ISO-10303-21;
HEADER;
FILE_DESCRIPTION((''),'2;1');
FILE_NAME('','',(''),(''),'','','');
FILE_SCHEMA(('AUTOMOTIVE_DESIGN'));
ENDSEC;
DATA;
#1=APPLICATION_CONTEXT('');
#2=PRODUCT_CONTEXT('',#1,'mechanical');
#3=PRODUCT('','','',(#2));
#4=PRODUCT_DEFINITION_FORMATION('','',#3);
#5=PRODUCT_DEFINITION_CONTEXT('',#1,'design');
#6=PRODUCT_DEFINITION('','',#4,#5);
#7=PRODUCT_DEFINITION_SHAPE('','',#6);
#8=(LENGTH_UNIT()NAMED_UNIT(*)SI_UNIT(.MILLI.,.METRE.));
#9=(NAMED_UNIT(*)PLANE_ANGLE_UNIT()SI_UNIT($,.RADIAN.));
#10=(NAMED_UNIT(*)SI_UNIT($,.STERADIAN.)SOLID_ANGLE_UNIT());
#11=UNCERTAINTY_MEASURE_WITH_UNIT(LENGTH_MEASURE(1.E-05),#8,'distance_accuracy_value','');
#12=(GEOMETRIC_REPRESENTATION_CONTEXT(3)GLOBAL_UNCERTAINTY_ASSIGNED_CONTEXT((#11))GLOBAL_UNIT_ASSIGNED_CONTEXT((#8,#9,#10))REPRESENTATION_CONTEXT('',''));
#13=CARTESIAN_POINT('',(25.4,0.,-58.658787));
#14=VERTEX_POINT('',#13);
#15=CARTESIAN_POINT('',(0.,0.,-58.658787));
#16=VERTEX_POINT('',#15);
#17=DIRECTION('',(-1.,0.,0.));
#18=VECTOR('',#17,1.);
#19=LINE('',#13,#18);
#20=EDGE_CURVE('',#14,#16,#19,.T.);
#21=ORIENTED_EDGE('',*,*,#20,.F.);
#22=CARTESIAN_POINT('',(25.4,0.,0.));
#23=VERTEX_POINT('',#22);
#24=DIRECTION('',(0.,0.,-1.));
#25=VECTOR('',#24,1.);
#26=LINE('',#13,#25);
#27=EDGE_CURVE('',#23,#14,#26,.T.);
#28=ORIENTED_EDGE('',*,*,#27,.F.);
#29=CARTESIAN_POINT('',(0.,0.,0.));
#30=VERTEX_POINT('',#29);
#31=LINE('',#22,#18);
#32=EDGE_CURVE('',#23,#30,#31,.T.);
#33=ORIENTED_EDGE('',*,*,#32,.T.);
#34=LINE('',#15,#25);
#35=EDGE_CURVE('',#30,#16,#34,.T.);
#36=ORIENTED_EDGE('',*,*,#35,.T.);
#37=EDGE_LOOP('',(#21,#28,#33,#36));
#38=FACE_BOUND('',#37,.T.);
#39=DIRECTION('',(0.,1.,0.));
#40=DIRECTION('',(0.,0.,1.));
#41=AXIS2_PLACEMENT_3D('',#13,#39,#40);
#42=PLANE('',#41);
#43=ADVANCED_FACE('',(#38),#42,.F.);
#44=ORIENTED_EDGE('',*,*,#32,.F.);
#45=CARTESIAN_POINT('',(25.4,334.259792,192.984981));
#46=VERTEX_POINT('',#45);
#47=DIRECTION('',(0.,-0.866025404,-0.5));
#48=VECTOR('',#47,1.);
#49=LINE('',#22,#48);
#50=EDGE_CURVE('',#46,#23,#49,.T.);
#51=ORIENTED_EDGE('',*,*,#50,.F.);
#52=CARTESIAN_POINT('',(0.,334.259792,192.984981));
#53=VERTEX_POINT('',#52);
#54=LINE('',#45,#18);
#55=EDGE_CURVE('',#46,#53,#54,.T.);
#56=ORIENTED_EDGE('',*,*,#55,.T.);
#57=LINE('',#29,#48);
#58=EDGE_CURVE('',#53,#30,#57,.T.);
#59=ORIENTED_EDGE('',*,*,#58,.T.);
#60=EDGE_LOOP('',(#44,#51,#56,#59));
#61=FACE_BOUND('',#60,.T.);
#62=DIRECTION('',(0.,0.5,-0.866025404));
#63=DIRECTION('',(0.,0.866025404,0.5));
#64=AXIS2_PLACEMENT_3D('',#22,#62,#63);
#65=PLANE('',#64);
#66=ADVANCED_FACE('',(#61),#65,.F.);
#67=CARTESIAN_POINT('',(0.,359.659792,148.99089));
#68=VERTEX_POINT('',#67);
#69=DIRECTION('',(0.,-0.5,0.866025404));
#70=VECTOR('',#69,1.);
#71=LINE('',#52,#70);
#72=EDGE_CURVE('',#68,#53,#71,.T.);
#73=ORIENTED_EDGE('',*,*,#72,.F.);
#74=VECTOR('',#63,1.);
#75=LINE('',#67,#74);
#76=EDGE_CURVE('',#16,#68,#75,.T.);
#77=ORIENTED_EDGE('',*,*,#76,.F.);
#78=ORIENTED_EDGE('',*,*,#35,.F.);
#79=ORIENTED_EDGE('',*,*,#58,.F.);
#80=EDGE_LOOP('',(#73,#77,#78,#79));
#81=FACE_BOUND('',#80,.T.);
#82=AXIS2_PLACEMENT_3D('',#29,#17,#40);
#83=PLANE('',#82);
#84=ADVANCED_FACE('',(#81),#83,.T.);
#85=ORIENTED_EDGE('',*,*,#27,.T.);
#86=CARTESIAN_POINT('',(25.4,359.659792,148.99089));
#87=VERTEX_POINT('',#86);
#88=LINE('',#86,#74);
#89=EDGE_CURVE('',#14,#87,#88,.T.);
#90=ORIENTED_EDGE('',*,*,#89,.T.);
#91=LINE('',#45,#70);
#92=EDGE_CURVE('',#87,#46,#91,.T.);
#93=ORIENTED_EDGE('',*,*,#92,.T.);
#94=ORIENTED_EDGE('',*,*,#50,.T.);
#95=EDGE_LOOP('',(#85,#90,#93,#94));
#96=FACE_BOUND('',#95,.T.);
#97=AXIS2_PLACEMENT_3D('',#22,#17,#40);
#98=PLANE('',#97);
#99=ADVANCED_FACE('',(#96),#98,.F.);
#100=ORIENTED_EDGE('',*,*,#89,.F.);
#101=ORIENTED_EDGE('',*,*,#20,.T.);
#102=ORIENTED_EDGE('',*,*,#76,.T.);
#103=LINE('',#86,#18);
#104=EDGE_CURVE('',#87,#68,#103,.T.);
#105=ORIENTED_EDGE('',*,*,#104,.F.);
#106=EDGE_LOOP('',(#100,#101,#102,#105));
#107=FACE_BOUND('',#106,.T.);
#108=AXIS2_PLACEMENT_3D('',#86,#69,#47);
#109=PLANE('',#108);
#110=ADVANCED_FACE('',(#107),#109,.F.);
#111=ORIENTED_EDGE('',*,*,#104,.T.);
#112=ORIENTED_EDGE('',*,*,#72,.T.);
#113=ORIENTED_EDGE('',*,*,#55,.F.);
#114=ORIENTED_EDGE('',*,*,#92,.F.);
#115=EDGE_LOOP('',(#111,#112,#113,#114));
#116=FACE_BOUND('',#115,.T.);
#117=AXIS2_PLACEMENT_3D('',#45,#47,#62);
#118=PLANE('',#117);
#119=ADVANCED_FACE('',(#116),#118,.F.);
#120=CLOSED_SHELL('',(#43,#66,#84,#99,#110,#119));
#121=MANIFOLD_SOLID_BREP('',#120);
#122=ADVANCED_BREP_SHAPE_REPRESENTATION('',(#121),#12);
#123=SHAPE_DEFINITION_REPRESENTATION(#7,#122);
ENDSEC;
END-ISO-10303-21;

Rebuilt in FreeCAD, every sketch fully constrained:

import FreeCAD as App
import Part
import Sketcher
Q = App.Units.Quantity


def add_polygon(sketch, points):
    """Adds a closed chain of lines whose ends are joined by coincident constraints."""
    first, n = sketch.GeometryCount, len(points)
    for a, b in zip(points, points[1:] + points[:1]):
        sketch.addGeometry(Part.LineSegment(App.Vector(*a, 0), App.Vector(*b, 0)), False)
    for i in range(n):
        sketch.addConstraint(Sketcher.Constraint("Coincident", first + i, 2, first + (i + 1) % n, 1))

doc = App.newDocument("Part")
body = doc.addObject("PartDesign::Body", "Body")

# Sketch on YZ plane
sketch1 = body.newObject("Sketcher::SketchObject", "Sketch")
sketch1.AttachmentSupport = (doc.getObject("YZ_Plane"), [""])
sketch1.MapMode = "FlatFace"
add_polygon(sketch1, [(334.259792, 192.984981), (0, 0), (0, -58.658787), (359.659792, 148.99089)])  # lines 0-3
sketch1.addConstraint(Sketcher.Constraint("Vertical", 1))
sketch1.addConstraint(Sketcher.Constraint("Coincident", 0, 2, -1, 1))
sketch1.addConstraint(Sketcher.Constraint("Parallel", 0, 2))
sketch1.addConstraint(Sketcher.Constraint("Perpendicular", 2, 3))
sketch1.addConstraint(Sketcher.Constraint("Distance", 3, Q("2 in")))
sketch1.addConstraint(Sketcher.Constraint("Angle", 0, Q("-150 deg")))
sketch1.addConstraint(Sketcher.Constraint("Distance", 0, Q("385.969961 mm")))
pad1 = body.newObject("PartDesign::Pad", "Pad")
pad1.Profile = sketch1
pad1.Length = Q("1 in")

doc.recompute()
